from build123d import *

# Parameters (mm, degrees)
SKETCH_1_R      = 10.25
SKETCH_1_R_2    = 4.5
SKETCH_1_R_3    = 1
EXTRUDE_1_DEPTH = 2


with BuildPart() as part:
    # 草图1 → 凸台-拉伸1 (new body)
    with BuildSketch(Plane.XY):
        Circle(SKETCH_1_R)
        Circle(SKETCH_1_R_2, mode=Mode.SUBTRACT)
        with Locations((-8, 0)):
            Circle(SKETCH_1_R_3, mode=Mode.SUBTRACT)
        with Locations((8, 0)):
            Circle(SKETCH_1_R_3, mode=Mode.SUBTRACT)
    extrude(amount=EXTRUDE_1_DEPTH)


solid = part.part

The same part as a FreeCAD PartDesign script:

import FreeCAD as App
import Part
import Sketcher
from FreeCAD import Vector
Q = App.Units.Quantity

doc = App.newDocument("Part")
body = doc.addObject("PartDesign::Body", "Body")

# Sketch on XY plane
sketch1 = body.newObject("Sketcher::SketchObject", "Sketch")
sketch1.AttachmentSupport = (doc.getObject("XY_Plane"), [""])
sketch1.MapMode = "FlatFace"
sketch1.addGeometry(Part.Circle(Vector(0, 0, 0), Vector(0, 0, 1), 10.2), False)
sketch1.addGeometry(Part.Circle(Vector(-8, 0, 0), Vector(0, 0, 1), 1), False)
sketch1.addGeometry(Part.Circle(Vector(0, 0, 0), Vector(0, 0, 1), 4.5), False)
sketch1.addGeometry(Part.Circle(Vector(8, 0, 0), Vector(0, 0, 1), 1), False)
sketch1.addConstraint(Sketcher.Constraint("Coincident", 0, 3, -1, 1))
sketch1.addConstraint(Sketcher.Constraint("Coincident", 2, 3, -1, 1))
sketch1.addConstraint(Sketcher.Constraint("Equal", 1, 3))
sketch1.addConstraint(Sketcher.Constraint("Symmetric", 1, 3, 3, 3, -1, 1))
sketch1.addConstraint(Sketcher.Constraint("PointOnObject", 1, 3, -1))
sketch1.addConstraint(Sketcher.Constraint("Diameter", 1, Q("2 mm")))
sketch1.addConstraint(Sketcher.Constraint("Diameter", 2, Q("9 mm")))
sketch1.addConstraint(Sketcher.Constraint("Diameter", 0, Q("20.5 mm")))
sketch1.addConstraint(Sketcher.Constraint("DistanceX", 1, 3, -1, 1, Q("8 mm")))
pad1 = body.newObject("PartDesign::Pad", "Pad")
pad1.Profile = sketch1
pad1.Length = 2

doc.recompute()
